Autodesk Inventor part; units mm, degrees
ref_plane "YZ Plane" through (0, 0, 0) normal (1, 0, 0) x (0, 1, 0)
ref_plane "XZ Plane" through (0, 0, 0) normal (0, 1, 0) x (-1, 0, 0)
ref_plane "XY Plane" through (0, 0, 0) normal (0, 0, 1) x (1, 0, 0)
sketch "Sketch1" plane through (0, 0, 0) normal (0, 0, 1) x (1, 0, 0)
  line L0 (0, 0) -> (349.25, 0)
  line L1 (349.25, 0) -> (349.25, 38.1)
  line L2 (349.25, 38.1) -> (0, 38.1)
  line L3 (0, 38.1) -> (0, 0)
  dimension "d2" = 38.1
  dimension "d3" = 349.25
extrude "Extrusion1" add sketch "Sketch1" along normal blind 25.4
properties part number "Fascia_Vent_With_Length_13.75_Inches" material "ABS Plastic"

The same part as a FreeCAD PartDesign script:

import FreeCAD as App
import Part
import Sketcher
from FreeCAD import Vector
Q = App.Units.Quantity

doc = App.newDocument("Part")
params = doc.addObject("Spreadsheet::Sheet", "Params")
for row, (alias, value) in enumerate([
    ("sketch1_height", "1.5 in"),
    ("sketch1_width", "13.75 in"),
    ("pad1_length", "1 in"),
], start=1):
    params.set(f"A{row}", alias)
    params.set(f"B{row}", "=" + value)
    params.setAlias(f"B{row}", alias)

body = doc.addObject("PartDesign::Body", "Body")

# Sketch on XY plane
sketch1 = doc.addObject("Sketcher::SketchObject", "Sketch")
body.addObject(sketch1)
sketch1.AttachmentSupport = (doc.XY_Plane, [""])
sketch1.MapMode = "FlatFace"
sketch1.addGeometry([
    Part.LineSegment(Vector(0, 38.1, 0), Vector(0, 0, 0)),
    Part.LineSegment(Vector(0, 0, 0), Vector(349.25, 0, 0)),
    Part.LineSegment(Vector(349.25, 0, 0), Vector(349.25, 38.1, 0)),
    Part.LineSegment(Vector(349.25, 38.1, 0), Vector(0, 38.1, 0)),
], False)
sketch1.addConstraint([
    Sketcher.Constraint("Coincident", 0, 2, 1, 1),
    Sketcher.Constraint("Coincident", 1, 2, 2, 1),
    Sketcher.Constraint("Coincident", 2, 2, 3, 1),
    Sketcher.Constraint("Coincident", 3, 2, 0, 1),
    Sketcher.Constraint("Vertical", 0),
    Sketcher.Constraint("Horizontal", 1),
    Sketcher.Constraint("Vertical", 2),
    Sketcher.Constraint("Horizontal", 3),
    Sketcher.Constraint("Coincident", 0, 2, -1, 1),
    Sketcher.Constraint("DistanceY", 0, 2, 0, 1, Q("1.5 in")),
    Sketcher.Constraint("DistanceX", 1, 1, 1, 2, Q("13.75 in")),
])
sketch1.setExpression("Constraints[9]", "Params.sketch1_height")
sketch1.setExpression("Constraints[10]", "Params.sketch1_width")
pad1 = doc.addObject("PartDesign::Pad", "Pad")
body.addObject(pad1)
pad1.Profile = sketch1
pad1.setExpression("Length", "Params.pad1_length")

doc.recompute()
